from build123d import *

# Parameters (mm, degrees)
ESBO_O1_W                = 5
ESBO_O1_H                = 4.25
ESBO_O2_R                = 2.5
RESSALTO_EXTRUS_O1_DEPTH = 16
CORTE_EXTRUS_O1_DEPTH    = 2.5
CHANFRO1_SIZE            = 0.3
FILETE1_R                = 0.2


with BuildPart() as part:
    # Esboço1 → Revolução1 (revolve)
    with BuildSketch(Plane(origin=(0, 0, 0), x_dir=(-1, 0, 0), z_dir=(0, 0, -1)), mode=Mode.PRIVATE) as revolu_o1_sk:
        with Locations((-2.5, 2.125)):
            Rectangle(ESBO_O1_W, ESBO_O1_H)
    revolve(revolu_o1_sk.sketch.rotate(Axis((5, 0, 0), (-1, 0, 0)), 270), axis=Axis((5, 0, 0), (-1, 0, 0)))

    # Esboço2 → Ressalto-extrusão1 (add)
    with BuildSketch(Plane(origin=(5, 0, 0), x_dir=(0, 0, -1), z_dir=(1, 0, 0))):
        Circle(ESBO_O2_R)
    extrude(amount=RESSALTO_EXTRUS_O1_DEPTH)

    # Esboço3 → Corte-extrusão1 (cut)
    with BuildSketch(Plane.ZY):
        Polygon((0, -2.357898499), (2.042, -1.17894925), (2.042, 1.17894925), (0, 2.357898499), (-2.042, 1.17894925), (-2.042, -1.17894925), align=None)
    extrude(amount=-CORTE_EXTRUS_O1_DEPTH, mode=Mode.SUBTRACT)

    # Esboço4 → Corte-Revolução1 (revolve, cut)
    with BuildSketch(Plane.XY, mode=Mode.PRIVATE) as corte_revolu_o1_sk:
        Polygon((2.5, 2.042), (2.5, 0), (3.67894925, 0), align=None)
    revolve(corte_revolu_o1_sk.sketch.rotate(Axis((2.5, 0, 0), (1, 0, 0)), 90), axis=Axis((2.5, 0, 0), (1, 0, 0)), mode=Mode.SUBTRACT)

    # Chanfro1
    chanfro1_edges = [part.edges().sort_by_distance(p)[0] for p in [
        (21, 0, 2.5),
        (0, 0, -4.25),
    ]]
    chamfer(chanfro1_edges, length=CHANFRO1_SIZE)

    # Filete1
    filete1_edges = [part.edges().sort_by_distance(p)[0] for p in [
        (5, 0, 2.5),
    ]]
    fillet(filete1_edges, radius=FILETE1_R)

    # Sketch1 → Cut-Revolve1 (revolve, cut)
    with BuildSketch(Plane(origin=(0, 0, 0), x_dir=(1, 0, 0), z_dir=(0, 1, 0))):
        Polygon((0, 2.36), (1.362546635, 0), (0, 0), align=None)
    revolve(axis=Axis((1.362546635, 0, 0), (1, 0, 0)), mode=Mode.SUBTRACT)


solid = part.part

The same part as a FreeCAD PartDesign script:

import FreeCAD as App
import Part
import Sketcher
from FreeCAD import Vector
Q = App.Units.Quantity


def edges_at(feature, points):
    """Names of the edges that pass closest to the given points."""
    edges = feature.Shape.Edges
    near = lambda p: min(range(len(edges)), key=lambda i: edges[i].distToShape(Part.Vertex(*p))[0])
    return sorted({f"Edge{near(p) + 1}" for p in points})


def add_polygon(sketch, points):
    """Adds a closed chain of lines whose ends are joined by coincident constraints."""
    first, n = sketch.GeometryCount, len(points)
    for a, b in zip(points, points[1:] + points[:1]):
        sketch.addGeometry(Part.LineSegment(App.Vector(*a, 0), App.Vector(*b, 0)), False)
    for i in range(n):
        sketch.addConstraint(Sketcher.Constraint("Coincident", first + i, 2, first + (i + 1) % n, 1))

doc = App.newDocument("Part")
body = doc.addObject("PartDesign::Body", "Body")

# Sketch on XY plane
sketch1 = body.newObject("Sketcher::SketchObject", "Sketch")
sketch1.AttachmentSupport = (doc.getObject("XY_Plane"), [""])
sketch1.MapMode = "FlatFace"
add_polygon(sketch1, [(5, 4.25), (5, 0), (0, 0), (0, 4.25)])  # lines 0-3
sketch1.addConstraint([
    Sketcher.Constraint("Vertical", 0),
    Sketcher.Constraint("Horizontal", 1),
    Sketcher.Constraint("Vertical", 2),
    Sketcher.Constraint("Horizontal", 3),
    Sketcher.Constraint("Coincident", 1, 2, -1, 1),
    Sketcher.Constraint("DistanceX", 1, 2, 1, 1, 5.0),
    Sketcher.Constraint("DistanceY", 0, 2, 0, 1, 4.25),
])
revolution = body.newObject("PartDesign::Revolution", "Revolution")
revolution.Profile = sketch1
revolution.ReferenceAxis = (sketch1, ["H_Axis"])
revolution.Angle = 360

# Sketch on YZ plane
sketch2 = body.newObject("Sketcher::SketchObject", "Sketch001")
sketch2.AttachmentSupport = (doc.getObject("YZ_Plane"), [""])
sketch2.MapMode = "FlatFace"
sketch2.AttachmentOffset = App.Placement(Vector(0, 0, 5), App.Rotation())
sketch2.addGeometry(Part.Circle(Vector(0, 0, 0), Vector(0, 0, 1), 2.5), False)
sketch2.addConstraint([
    Sketcher.Constraint("Coincident", 0, 3, -1, 1),
    Sketcher.Constraint("Diameter", 0, 5.0),
])
pad1 = body.newObject("PartDesign::Pad", "Pad")
pad1.Profile = sketch2
pad1.Length = 16

# Sketch on YZ plane
sketch3 = body.newObject("Sketcher::SketchObject", "Sketch002")
sketch3.AttachmentSupport = (doc.getObject("YZ_Plane"), [""])
sketch3.MapMode = "FlatFace"
add_polygon(sketch3, [(-2.357898, 0), (-1.178949, 2.042), (1.178949, 2.042), (2.357898, 0), (1.178949, -2.042), (-1.178949, -2.042)])  # lines 0-5
sketch3.addConstraint([
    Sketcher.Constraint("Horizontal", 1),
    Sketcher.Constraint("Horizontal", 4),
    Sketcher.Constraint("Symmetric", 0, 2, 3, 2, -1, 1),
    Sketcher.Constraint("Symmetric", 2, 2, 5, 2, -1, 1),
    Sketcher.Constraint("PointOnObject", 2, 2, -1),
    Sketcher.Constraint("Parallel", 2, 5),
    Sketcher.Constraint("Vertical", 1, 2, 3, 2),
    Sketcher.Constraint("Angle", 0, Q("60 deg")),
    Sketcher.Constraint("DistanceX", 1, 1, 1, 2, 2.357899),
    Sketcher.Constraint("DistanceY", -1, 1, 0, 2, 2.042),
])
pocket1 = body.newObject("PartDesign::Pocket", "Pocket")
pocket1.Profile = sketch3
pocket1.Length = 2.5
pocket1.Reversed = True

# Sketch on XY plane
sketch4 = body.newObject("Sketcher::SketchObject", "Sketch003")
sketch4.AttachmentSupport = (doc.getObject("XY_Plane"), [""])
sketch4.MapMode = "FlatFace"
add_polygon(sketch4, [(2.5, 2.042), (2.5, 0), (3.678949, 0)])  # lines 0-2
sketch4.addConstraint([
    Sketcher.Constraint("Vertical", 0),
    Sketcher.Constraint("Horizontal", 1),
    Sketcher.Constraint("PointOnObject", 0, 2, -1),
    Sketcher.Constraint("Angle", 2, Q("120 deg")),
    Sketcher.Constraint("DistanceX", -1, 1, 0, 2, 2.5),
    Sketcher.Constraint("DistanceY", 0, 2, 0, 1, 2.042),
])
groove = body.newObject("PartDesign::Groove", "Groove")
groove.Profile = sketch4
groove.ReferenceAxis = (sketch4, ["H_Axis"])
groove.Angle = 360
doc.recompute()

chamfer = body.newObject("PartDesign::Chamfer", "Chamfer")
chamfer.Base = (groove, edges_at(groove, [(21, 0, 2.5), (0, 0, -4.25)]))
chamfer.Size = 0.3
doc.recompute()

fillet = body.newObject("PartDesign::Fillet", "Fillet")
fillet.Base = (chamfer, edges_at(chamfer, [(5, 0, 2.5)]))
fillet.Radius = 0.2

# Sketch on XZ plane
sketch5 = body.newObject("Sketcher::SketchObject", "Sketch004")
sketch5.AttachmentSupport = (doc.getObject("XZ_Plane"), [""])
sketch5.MapMode = "FlatFace"
add_polygon(sketch5, [(1.362547, 0), (0, -2.36), (0, 0)])  # lines 0-2
sketch5.addConstraint([
    Sketcher.Constraint("Vertical", 1),
    Sketcher.Constraint("Horizontal", 2),
    Sketcher.Constraint("Coincident", 1, 2, -1, 1),
    Sketcher.Constraint("Angle", 0, Q("-120 deg")),
    Sketcher.Constraint("DistanceY", 1, 1, 1, 2, 2.36),
])
groove2 = body.newObject("PartDesign::Groove", "Groove001")
groove2.Profile = sketch5
groove2.ReferenceAxis = (sketch5, ["H_Axis"])
groove2.Angle = 360

doc.recompute()
